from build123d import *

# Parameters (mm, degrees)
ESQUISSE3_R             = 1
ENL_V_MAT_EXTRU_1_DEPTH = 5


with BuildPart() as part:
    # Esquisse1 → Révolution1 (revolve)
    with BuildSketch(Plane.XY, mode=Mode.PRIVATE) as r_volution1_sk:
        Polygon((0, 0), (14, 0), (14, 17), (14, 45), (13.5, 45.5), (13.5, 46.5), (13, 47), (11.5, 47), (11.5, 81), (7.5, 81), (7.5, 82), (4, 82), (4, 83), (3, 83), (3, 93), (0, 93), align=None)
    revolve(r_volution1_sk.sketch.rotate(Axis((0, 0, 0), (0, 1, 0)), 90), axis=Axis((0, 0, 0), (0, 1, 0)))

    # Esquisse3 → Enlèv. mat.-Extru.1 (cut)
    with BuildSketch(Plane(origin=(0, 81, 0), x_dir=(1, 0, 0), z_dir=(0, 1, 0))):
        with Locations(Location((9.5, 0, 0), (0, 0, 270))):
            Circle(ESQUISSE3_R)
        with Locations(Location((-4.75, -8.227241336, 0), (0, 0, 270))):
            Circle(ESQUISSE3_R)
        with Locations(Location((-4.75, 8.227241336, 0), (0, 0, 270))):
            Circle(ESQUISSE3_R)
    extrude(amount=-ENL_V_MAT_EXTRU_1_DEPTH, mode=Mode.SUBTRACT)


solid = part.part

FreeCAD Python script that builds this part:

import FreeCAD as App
import Part
import Sketcher
from FreeCAD import Vector
Q = App.Units.Quantity


def add_polygon(sketch, points):
    """Adds a closed chain of lines whose ends are joined by coincident constraints."""
    first, n = sketch.GeometryCount, len(points)
    for a, b in zip(points, points[1:] + points[:1]):
        sketch.addGeometry(Part.LineSegment(App.Vector(*a, 0), App.Vector(*b, 0)), False)
    for i in range(n):
        sketch.addConstraint(Sketcher.Constraint("Coincident", first + i, 2, first + (i + 1) % n, 1))

doc = App.newDocument("Part")
body = doc.addObject("PartDesign::Body", "Body")

sketch1 = body.newObject("Sketcher::SketchObject", "Sketch")
sketch1.AttachmentSupport = (doc.getObject("XY_Plane"), [""])
sketch1.MapMode = "FlatFace"
add_polygon(sketch1, [(0, 0), (14, 0), (14, 45), (13.5, 45.5), (13.5, 46.5), (13, 47), (11.5, 47), (11.5, 81), (7.5, 81), (7.5, 82), (4, 82), (4, 83), (3, 83), (3, 93), (0, 93)])
sketch1.addConstraint(Sketcher.Constraint("Horizontal", 0))
sketch1.addConstraint(Sketcher.Constraint("Vertical", 1))
sketch1.addConstraint(Sketcher.Constraint("Vertical", 3))
sketch1.addConstraint(Sketcher.Constraint("Horizontal", 5))
sketch1.addConstraint(Sketcher.Constraint("Vertical", 6))
sketch1.addConstraint(Sketcher.Constraint("Horizontal", 7))
sketch1.addConstraint(Sketcher.Constraint("Vertical", 8))
sketch1.addConstraint(Sketcher.Constraint("Horizontal", 9))
sketch1.addConstraint(Sketcher.Constraint("Vertical", 10))
sketch1.addConstraint(Sketcher.Constraint("Horizontal", 11))
sketch1.addConstraint(Sketcher.Constraint("Vertical", 12))
sketch1.addConstraint(Sketcher.Constraint("Horizontal", 13))
sketch1.addConstraint(Sketcher.Constraint("Vertical", 14))
sketch1.addConstraint(Sketcher.Constraint("Coincident", 14, 2, -1, 1))
sketch1.addConstraint(Sketcher.Constraint("Parallel", 2, 4))
sketch1.addConstraint(Sketcher.Constraint("Equal", 11, 3))
sketch1.addConstraint(Sketcher.Constraint("Equal", 3, 8))
sketch1.addConstraint(Sketcher.Constraint("Equal", 8, 10))
sketch1.addConstraint(Sketcher.Constraint("Equal", 2, 4))
sketch1.addConstraint(Sketcher.Constraint("DistanceX", 0, 1, 0, 2, Q("14 mm")))
sketch1.addConstraint(Sketcher.Constraint("DistanceX", 7, 2, 7, 1, Q("4 mm")))
sketch1.addConstraint(Sketcher.Constraint("DistanceX", 11, 2, 11, 1, Q("1 mm")))
sketch1.addConstraint(Sketcher.Constraint("DistanceX", 13, 2, 13, 1, Q("3 mm")))
sketch1.addConstraint(Sketcher.Constraint("DistanceY", 1, 1, 1, 2, Q("45 mm")))
sketch1.addConstraint(Sketcher.Constraint("DistanceY", 6, 1, 6, 2, Q("34 mm")))
sketch1.addConstraint(Sketcher.Constraint("DistanceY", 12, 1, 12, 2, Q("10 mm")))
sketch1.addConstraint(Sketcher.Constraint("DistanceY", 14, 2, 14, 1, Q("93 mm")))
sketch1.addConstraint(Sketcher.Constraint("Angle", 2, Q("135 deg")))
sketch1.addConstraint(Sketcher.Constraint("DistanceX", 5, 2, 5, 1, Q("1.5 mm")))
revolution = body.newObject("PartDesign::Revolution", "Revolution")
revolution.Profile = sketch1
revolution.ReferenceAxis = (sketch1, ["V_Axis"])
revolution.Angle = 360

sketch2 = body.newObject("Sketcher::SketchObject", "Sketch001")
sketch2.AttachmentSupport = (doc.getObject("XZ_Plane"), [""])
sketch2.MapMode = "FlatFace"
sketch2.AttachmentOffset = App.Placement(Vector(0, 0, -81), App.Rotation())
sketch2.addGeometry(Part.Circle(Vector(9.5, 0, 0), Vector(0, 0, 1), 1), False)
sketch2.addGeometry(Part.Circle(Vector(-4.8, 8.2, 0), Vector(0, 0, 1), 1), False)
sketch2.addGeometry(Part.Circle(Vector(-4.8, -8.2, 0), Vector(0, 0, 1), 1), False)
sketch2.addConstraint(Sketcher.Constraint("Equal", 0, 1))
sketch2.addConstraint(Sketcher.Constraint("Equal", 1, 2))
sketch2.addConstraint(Sketcher.Constraint("Symmetric", 1, 3, 2, 3, -1))
sketch2.addConstraint(Sketcher.Constraint("PointOnObject", 0, 3, -1))
sketch2.addConstraint(Sketcher.Constraint("Diameter", 0, Q("2 mm")))
sketch2.addConstraint(Sketcher.Constraint("DistanceX", -1, 1, 0, 3, Q("9.5 mm")))
sketch2.addConstraint(Sketcher.Constraint("DistanceX", 1, 3, -1, 1, Q("4.75 mm")))
sketch2.addConstraint(Sketcher.Constraint("DistanceY", -1, 1, 1, 3, Q("8.227241 mm")))
pocket1 = body.newObject("PartDesign::Pocket", "Pocket")
pocket1.Profile = sketch2
pocket1.Length = 5
pocket1.Reversed = True

doc.recompute()
